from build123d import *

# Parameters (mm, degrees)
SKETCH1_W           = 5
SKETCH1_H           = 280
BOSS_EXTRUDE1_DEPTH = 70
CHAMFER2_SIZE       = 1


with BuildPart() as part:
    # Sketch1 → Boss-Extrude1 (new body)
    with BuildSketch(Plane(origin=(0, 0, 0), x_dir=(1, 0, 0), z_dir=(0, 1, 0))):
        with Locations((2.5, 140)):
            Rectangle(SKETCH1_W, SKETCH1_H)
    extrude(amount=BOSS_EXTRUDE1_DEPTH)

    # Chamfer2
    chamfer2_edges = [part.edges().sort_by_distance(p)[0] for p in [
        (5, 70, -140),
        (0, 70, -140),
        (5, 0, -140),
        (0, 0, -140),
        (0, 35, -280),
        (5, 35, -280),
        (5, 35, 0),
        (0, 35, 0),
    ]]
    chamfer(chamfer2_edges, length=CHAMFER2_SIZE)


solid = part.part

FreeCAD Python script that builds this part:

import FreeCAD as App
import Part
import Sketcher
Q = App.Units.Quantity


def edges_at(feature, points):
    """Names of the edges that pass closest to the given points."""
    edges = feature.Shape.Edges
    near = lambda p: min(range(len(edges)), key=lambda i: edges[i].distToShape(Part.Vertex(*p))[0])
    return sorted({f"Edge{near(p) + 1}" for p in points})

doc = App.newDocument("Part")
body = doc.addObject("PartDesign::Body", "Body")

sketch1 = doc.addObject("Sketcher::SketchObject", "Sketch")
body.addObject(sketch1)
sketch1.AttachmentSupport = (doc.XZ_Plane, [""])
sketch1.MapMode = "FlatFace"
sketch1.addGeometry([
    Part.LineSegment(App.Vector(0, -280, 0), App.Vector(0, 0, 0)),
    Part.LineSegment(App.Vector(0, 0, 0), App.Vector(5, 0, 0)),
    Part.LineSegment(App.Vector(5, 0, 0), App.Vector(5, -280, 0)),
    Part.LineSegment(App.Vector(5, -280, 0), App.Vector(0, -280, 0)),
], False)
sketch1.addConstraint([
    Sketcher.Constraint("Coincident", 0, 2, 1, 1),
    Sketcher.Constraint("Coincident", 1, 2, 2, 1),
    Sketcher.Constraint("Coincident", 2, 2, 3, 1),
    Sketcher.Constraint("Coincident", 3, 2, 0, 1),
    Sketcher.Constraint("Vertical", 0),
    Sketcher.Constraint("Horizontal", 1),
    Sketcher.Constraint("Vertical", 2),
    Sketcher.Constraint("Horizontal", 3),
    Sketcher.Constraint("Coincident", 0, 2, -1, 1),
    Sketcher.Constraint("DistanceX", 1, 1, 1, 2, Q("5 mm")),
    Sketcher.Constraint("DistanceY", 0, 1, 0, 2, Q("280 mm")),
])
pad1 = doc.addObject("PartDesign::Pad", "Pad")
body.addObject(pad1)
pad1.Profile = sketch1
pad1.Length = 70
pad1.Reversed = True
doc.recompute()

chamfer = doc.addObject("PartDesign::Chamfer", "Chamfer")
body.addObject(chamfer)
chamfer.Base = (pad1, edges_at(pad1, [
    (5, 70, -140),
    (0, 70, -140),
    (5, 0, -140),
    (0, 0, -140),
    (0, 35, -280),
    (5, 35, -280),
    (5, 35, 0),
    (0, 35, 0),
]))
chamfer.Size = 1

doc.recompute()
